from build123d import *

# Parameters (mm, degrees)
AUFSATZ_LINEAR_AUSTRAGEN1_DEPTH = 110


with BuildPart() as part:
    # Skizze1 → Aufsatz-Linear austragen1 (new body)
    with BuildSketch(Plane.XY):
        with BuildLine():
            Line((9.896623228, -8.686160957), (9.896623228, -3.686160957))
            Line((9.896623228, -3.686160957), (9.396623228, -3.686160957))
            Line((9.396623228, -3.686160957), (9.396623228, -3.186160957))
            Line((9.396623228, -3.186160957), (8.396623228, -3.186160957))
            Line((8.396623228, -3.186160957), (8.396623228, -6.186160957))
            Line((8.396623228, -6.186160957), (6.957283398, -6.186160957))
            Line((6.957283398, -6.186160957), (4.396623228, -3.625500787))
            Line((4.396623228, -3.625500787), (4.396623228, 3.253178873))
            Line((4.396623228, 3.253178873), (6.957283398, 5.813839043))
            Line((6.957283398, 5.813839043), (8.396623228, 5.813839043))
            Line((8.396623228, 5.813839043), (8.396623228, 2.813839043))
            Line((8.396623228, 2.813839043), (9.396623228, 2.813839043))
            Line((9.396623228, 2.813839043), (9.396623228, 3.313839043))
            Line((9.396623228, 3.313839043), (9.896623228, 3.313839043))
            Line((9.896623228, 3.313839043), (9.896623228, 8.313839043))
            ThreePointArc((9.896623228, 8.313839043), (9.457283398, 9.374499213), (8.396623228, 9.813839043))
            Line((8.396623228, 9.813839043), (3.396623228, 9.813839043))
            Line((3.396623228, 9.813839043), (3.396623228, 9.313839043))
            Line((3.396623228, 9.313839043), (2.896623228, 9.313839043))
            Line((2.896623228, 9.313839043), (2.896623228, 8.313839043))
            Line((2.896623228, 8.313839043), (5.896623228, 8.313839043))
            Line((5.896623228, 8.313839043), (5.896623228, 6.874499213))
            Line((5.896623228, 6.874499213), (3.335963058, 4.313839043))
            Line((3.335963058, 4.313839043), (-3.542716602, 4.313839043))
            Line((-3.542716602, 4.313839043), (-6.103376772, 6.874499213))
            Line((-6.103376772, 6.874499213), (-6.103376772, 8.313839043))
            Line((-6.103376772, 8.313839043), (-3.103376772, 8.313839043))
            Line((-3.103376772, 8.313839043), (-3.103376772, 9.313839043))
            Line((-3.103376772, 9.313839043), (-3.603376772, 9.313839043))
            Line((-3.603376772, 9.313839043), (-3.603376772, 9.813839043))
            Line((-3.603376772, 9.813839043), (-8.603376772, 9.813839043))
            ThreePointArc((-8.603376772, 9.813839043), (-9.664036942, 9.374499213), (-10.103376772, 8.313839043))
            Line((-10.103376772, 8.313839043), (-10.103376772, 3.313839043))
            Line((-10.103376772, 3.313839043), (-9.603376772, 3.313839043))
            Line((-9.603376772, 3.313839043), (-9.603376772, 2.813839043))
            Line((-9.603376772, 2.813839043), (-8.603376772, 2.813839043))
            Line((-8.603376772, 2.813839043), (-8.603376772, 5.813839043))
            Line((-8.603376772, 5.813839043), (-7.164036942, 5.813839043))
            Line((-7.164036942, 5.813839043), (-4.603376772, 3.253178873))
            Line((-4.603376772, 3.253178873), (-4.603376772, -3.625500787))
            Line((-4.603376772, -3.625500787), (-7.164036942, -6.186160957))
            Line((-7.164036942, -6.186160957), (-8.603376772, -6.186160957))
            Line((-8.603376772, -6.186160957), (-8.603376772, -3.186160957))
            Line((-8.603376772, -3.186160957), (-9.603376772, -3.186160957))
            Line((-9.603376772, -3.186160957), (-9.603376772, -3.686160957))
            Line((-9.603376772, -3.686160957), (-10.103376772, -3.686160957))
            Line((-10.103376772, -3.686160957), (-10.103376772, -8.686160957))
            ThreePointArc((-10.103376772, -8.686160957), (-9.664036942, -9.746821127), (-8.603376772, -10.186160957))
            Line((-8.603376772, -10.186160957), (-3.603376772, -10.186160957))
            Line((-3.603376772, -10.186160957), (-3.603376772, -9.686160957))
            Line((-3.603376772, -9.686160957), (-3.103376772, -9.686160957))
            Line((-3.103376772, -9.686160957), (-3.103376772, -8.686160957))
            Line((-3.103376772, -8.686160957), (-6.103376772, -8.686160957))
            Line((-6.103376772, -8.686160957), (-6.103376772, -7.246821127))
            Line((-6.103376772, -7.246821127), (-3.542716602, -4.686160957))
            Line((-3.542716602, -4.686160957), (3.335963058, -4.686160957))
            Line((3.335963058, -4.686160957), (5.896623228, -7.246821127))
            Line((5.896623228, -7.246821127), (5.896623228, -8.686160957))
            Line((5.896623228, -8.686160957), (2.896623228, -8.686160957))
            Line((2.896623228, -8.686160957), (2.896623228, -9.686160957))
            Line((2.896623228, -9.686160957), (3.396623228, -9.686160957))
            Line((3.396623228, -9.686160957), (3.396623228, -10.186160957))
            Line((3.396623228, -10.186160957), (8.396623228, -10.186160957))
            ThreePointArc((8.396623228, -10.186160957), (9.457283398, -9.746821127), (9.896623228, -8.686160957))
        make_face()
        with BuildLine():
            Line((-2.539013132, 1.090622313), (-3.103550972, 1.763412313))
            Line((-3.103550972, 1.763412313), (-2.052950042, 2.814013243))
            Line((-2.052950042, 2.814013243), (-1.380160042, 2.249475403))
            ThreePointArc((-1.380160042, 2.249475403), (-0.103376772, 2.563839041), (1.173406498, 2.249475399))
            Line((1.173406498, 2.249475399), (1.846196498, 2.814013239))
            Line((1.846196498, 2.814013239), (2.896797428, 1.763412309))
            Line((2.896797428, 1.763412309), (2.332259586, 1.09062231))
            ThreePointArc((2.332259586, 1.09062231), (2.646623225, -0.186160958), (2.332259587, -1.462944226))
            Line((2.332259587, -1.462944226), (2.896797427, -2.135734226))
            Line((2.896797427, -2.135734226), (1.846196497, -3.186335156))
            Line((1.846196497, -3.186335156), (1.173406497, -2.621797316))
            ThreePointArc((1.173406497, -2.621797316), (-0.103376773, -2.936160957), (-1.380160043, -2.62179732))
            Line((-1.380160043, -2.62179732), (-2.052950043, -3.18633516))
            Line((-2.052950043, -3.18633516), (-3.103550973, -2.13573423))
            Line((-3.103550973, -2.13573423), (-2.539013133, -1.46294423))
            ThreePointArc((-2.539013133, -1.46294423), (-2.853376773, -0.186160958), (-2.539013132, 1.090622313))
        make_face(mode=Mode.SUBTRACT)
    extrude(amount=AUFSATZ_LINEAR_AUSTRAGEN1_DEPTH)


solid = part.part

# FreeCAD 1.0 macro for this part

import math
import FreeCAD as App
import Part
import Sketcher
from FreeCAD import Vector
Q = App.Units.Quantity

doc = App.newDocument("Part")
body = doc.addObject("PartDesign::Body", "Body")

# Sketch on XY plane
sketch1 = body.newObject("Sketcher::SketchObject", "Sketch")
sketch1.AttachmentSupport = (doc.getObject("XY_Plane"), [""])
sketch1.MapMode = "FlatFace"
sketch1.addGeometry(Part.LineSegment(Vector(9.896623, -8.686161, 0), Vector(9.896623, -3.686161, 0)), False)
sketch1.addGeometry(Part.LineSegment(Vector(9.896623, -3.686161, 0), Vector(9.396623, -3.686161, 0)), False)
sketch1.addGeometry(Part.LineSegment(Vector(9.396623, -3.686161, 0), Vector(9.396623, -3.186161, 0)), False)
sketch1.addGeometry(Part.LineSegment(Vector(9.396623, -3.186161, 0), Vector(8.396623, -3.186161, 0)), False)
sketch1.addGeometry(Part.LineSegment(Vector(8.396623, -3.186161, 0), Vector(8.396623, -6.186161, 0)), False)
sketch1.addGeometry(Part.LineSegment(Vector(8.396623, -6.186161, 0), Vector(6.957283, -6.186161, 0)), False)
sketch1.addGeometry(Part.LineSegment(Vector(6.957283, -6.186161, 0), Vector(4.396623, -3.625501, 0)), False)
sketch1.addGeometry(Part.LineSegment(Vector(4.396623, -3.625501, 0), Vector(4.396623, 3.253179, 0)), False)
sketch1.addGeometry(Part.LineSegment(Vector(4.396623, 3.253179, 0), Vector(6.957283, 5.813839, 0)), False)
sketch1.addGeometry(Part.LineSegment(Vector(6.957283, 5.813839, 0), Vector(8.396623, 5.813839, 0)), False)
sketch1.addGeometry(Part.LineSegment(Vector(8.396623, 5.813839, 0), Vector(8.396623, 2.813839, 0)), False)
sketch1.addGeometry(Part.LineSegment(Vector(8.396623, 2.813839, 0), Vector(9.396623, 2.813839, 0)), False)
sketch1.addGeometry(Part.LineSegment(Vector(9.396623, 2.813839, 0), Vector(9.396623, 3.313839, 0)), False)
sketch1.addGeometry(Part.LineSegment(Vector(9.396623, 3.313839, 0), Vector(9.896623, 3.313839, 0)), False)
sketch1.addGeometry(Part.LineSegment(Vector(9.896623, 3.313839, 0), Vector(9.896623, 8.313839, 0)), False)
sketch1.addGeometry(Part.ArcOfCircle(Part.Circle(Vector(8.396623, 8.313839, 0), Vector(0, 0, 1), 1.5), math.radians(0), math.radians(90)), False)
sketch1.addGeometry(Part.LineSegment(Vector(8.396623, 9.813839, 0), Vector(3.396623, 9.813839, 0)), False)
sketch1.addGeometry(Part.LineSegment(Vector(3.396623, 9.813839, 0), Vector(3.396623, 9.313839, 0)), False)
sketch1.addGeometry(Part.LineSegment(Vector(3.396623, 9.313839, 0), Vector(2.896623, 9.313839, 0)), False)
sketch1.addGeometry(Part.LineSegment(Vector(2.896623, 9.313839, 0), Vector(2.896623, 8.313839, 0)), False)
sketch1.addGeometry(Part.LineSegment(Vector(2.896623, 8.313839, 0), Vector(5.896623, 8.313839, 0)), False)
sketch1.addGeometry(Part.LineSegment(Vector(5.896623, 8.313839, 0), Vector(5.896623, 6.874499, 0)), False)
sketch1.addGeometry(Part.LineSegment(Vector(5.896623, 6.874499, 0), Vector(3.335963, 4.313839, 0)), False)
sketch1.addGeometry(Part.LineSegment(Vector(3.335963, 4.313839, 0), Vector(-3.542717, 4.313839, 0)), False)
sketch1.addGeometry(Part.LineSegment(Vector(-3.542717, 4.313839, 0), Vector(-6.103377, 6.874499, 0)), False)
sketch1.addGeometry(Part.LineSegment(Vector(-6.103377, 6.874499, 0), Vector(-6.103377, 8.313839, 0)), False)
sketch1.addGeometry(Part.LineSegment(Vector(-6.103377, 8.313839, 0), Vector(-3.103377, 8.313839, 0)), False)
sketch1.addGeometry(Part.LineSegment(Vector(-3.103377, 8.313839, 0), Vector(-3.103377, 9.313839, 0)), False)
sketch1.addGeometry(Part.LineSegment(Vector(-3.103377, 9.313839, 0), Vector(-3.603377, 9.313839, 0)), False)
sketch1.addGeometry(Part.LineSegment(Vector(-3.603377, 9.313839, 0), Vector(-3.603377, 9.813839, 0)), False)
sketch1.addGeometry(Part.LineSegment(Vector(-3.603377, 9.813839, 0), Vector(-8.603377, 9.813839, 0)), False)
sketch1.addGeometry(Part.ArcOfCircle(Part.Circle(Vector(-8.603377, 8.313839, 0), Vector(0, 0, 1), 1.5), math.radians(90), math.radians(180)), False)
sketch1.addGeometry(Part.LineSegment(Vector(-10.103377, 8.313839, 0), Vector(-10.103377, 3.313839, 0)), False)
sketch1.addGeometry(Part.LineSegment(Vector(-10.103377, 3.313839, 0), Vector(-9.603377, 3.313839, 0)), False)
sketch1.addGeometry(Part.LineSegment(Vector(-9.603377, 3.313839, 0), Vector(-9.603377, 2.813839, 0)), False)
sketch1.addGeometry(Part.LineSegment(Vector(-9.603377, 2.813839, 0), Vector(-8.603377, 2.813839, 0)), False)
sketch1.addGeometry(Part.LineSegment(Vector(-8.603377, 2.813839, 0), Vector(-8.603377, 5.813839, 0)), False)
sketch1.addGeometry(Part.LineSegment(Vector(-8.603377, 5.813839, 0), Vector(-7.164037, 5.813839, 0)), False)
sketch1.addGeometry(Part.LineSegment(Vector(-7.164037, 5.813839, 0), Vector(-4.603377, 3.253179, 0)), False)
sketch1.addGeometry(Part.LineSegment(Vector(-4.603377, 3.253179, 0), Vector(-4.603377, -3.625501, 0)), False)
sketch1.addGeometry(Part.LineSegment(Vector(-4.603377, -3.625501, 0), Vector(-7.164037, -6.186161, 0)), False)
sketch1.addGeometry(Part.LineSegment(Vector(-7.164037, -6.186161, 0), Vector(-8.603377, -6.186161, 0)), False)
sketch1.addGeometry(Part.LineSegment(Vector(-8.603377, -6.186161, 0), Vector(-8.603377, -3.186161, 0)), False)
sketch1.addGeometry(Part.LineSegment(Vector(-8.603377, -3.186161, 0), Vector(-9.603377, -3.186161, 0)), False)
sketch1.addGeometry(Part.LineSegment(Vector(-9.603377, -3.186161, 0), Vector(-9.603377, -3.686161, 0)), False)
sketch1.addGeometry(Part.LineSegment(Vector(-9.603377, -3.686161, 0), Vector(-10.103377, -3.686161, 0)), False)
sketch1.addGeometry(Part.LineSegment(Vector(-10.103377, -3.686161, 0), Vector(-10.103377, -8.686161, 0)), False)
sketch1.addGeometry(Part.ArcOfCircle(Part.Circle(Vector(-8.603377, -8.686161, 0), Vector(0, 0, 1), 1.5), math.radians(-180), math.radians(-90)), False)
sketch1.addGeometry(Part.LineSegment(Vector(-8.603377, -10.186161, 0), Vector(-3.603377, -10.186161, 0)), False)
sketch1.addGeometry(Part.LineSegment(Vector(-3.603377, -10.186161, 0), Vector(-3.603377, -9.686161, 0)), False)
sketch1.addGeometry(Part.LineSegment(Vector(-3.603377, -9.686161, 0), Vector(-3.103377, -9.686161, 0)), False)
sketch1.addGeometry(Part.LineSegment(Vector(-3.103377, -9.686161, 0), Vector(-3.103377, -8.686161, 0)), False)
sketch1.addGeometry(Part.LineSegment(Vector(-3.103377, -8.686161, 0), Vector(-6.103377, -8.686161, 0)), False)
sketch1.addGeometry(Part.LineSegment(Vector(-6.103377, -8.686161, 0), Vector(-6.103377, -7.246821, 0)), False)
sketch1.addGeometry(Part.LineSegment(Vector(-6.103377, -7.246821, 0), Vector(-3.542717, -4.686161, 0)), False)
sketch1.addGeometry(Part.LineSegment(Vector(-3.542717, -4.686161, 0), Vector(3.335963, -4.686161, 0)), False)
sketch1.addGeometry(Part.LineSegment(Vector(3.335963, -4.686161, 0), Vector(5.896623, -7.246821, 0)), False)
sketch1.addGeometry(Part.LineSegment(Vector(5.896623, -7.246821, 0), Vector(5.896623, -8.686161, 0)), False)
sketch1.addGeometry(Part.LineSegment(Vector(5.896623, -8.686161, 0), Vector(2.896623, -8.686161, 0)), False)
sketch1.addGeometry(Part.LineSegment(Vector(2.896623, -8.686161, 0), Vector(2.896623, -9.686161, 0)), False)
sketch1.addGeometry(Part.LineSegment(Vector(2.896623, -9.686161, 0), Vector(3.396623, -9.686161, 0)), False)
sketch1.addGeometry(Part.LineSegment(Vector(3.396623, -9.686161, 0), Vector(3.396623, -10.186161, 0)), False)
sketch1.addGeometry(Part.LineSegment(Vector(3.396623, -10.186161, 0), Vector(8.396623, -10.186161, 0)), False)
sketch1.addGeometry(Part.ArcOfCircle(Part.Circle(Vector(8.396623, -8.686161, 0), Vector(0, 0, 1), 1.5), math.radians(-90), math.radians(0)), False)
sketch1.addGeometry(Part.ArcOfCircle(Part.Circle(Vector(-0.103377, -0.186161, 0), Vector(0, 0, 1), 2.75), math.radians(152.336053), math.radians(207.663947)), False)
sketch1.addGeometry(Part.LineSegment(Vector(-2.539013, 1.090622, 0), Vector(-3.103551, 1.763412, 0)), False)
sketch1.addGeometry(Part.LineSegment(Vector(-3.103551, 1.763412, 0), Vector(-2.05295, 2.814013, 0)), False)
sketch1.addGeometry(Part.LineSegment(Vector(-2.05295, 2.814013, 0), Vector(-1.38016, 2.249475, 0)), False)
sketch1.addGeometry(Part.ArcOfCircle(Part.Circle(Vector(-0.103377, -0.186161, 0), Vector(0, 0, 1), 2.75), math.radians(62.336053), math.radians(117.663947)), False)
sketch1.addGeometry(Part.LineSegment(Vector(1.173406, 2.249475, 0), Vector(1.846196, 2.814013, 0)), False)
sketch1.addGeometry(Part.LineSegment(Vector(1.846196, 2.814013, 0), Vector(2.896797, 1.763412, 0)), False)
sketch1.addGeometry(Part.LineSegment(Vector(2.896797, 1.763412, 0), Vector(2.33226, 1.090622, 0)), False)
sketch1.addGeometry(Part.ArcOfCircle(Part.Circle(Vector(-0.103377, -0.186161, 0), Vector(0, 0, 1), 2.75), math.radians(-27.663947), math.radians(27.663947)), False)
sketch1.addGeometry(Part.LineSegment(Vector(2.33226, -1.462944, 0), Vector(2.896797, -2.135734, 0)), False)
sketch1.addGeometry(Part.LineSegment(Vector(2.896797, -2.135734, 0), Vector(1.846196, -3.186335, 0)), False)
sketch1.addGeometry(Part.LineSegment(Vector(1.846196, -3.186335, 0), Vector(1.173406, -2.621797, 0)), False)
sketch1.addGeometry(Part.ArcOfCircle(Part.Circle(Vector(-0.103377, -0.186161, 0), Vector(0, 0, 1), 2.75), math.radians(-117.663947), math.radians(-62.336053)), False)
sketch1.addGeometry(Part.LineSegment(Vector(-1.38016, -2.621797, 0), Vector(-2.05295, -3.186335, 0)), False)
sketch1.addGeometry(Part.LineSegment(Vector(-2.05295, -3.186335, 0), Vector(-3.103551, -2.135734, 0)), False)
sketch1.addGeometry(Part.LineSegment(Vector(-3.103551, -2.135734, 0), Vector(-2.539013, -1.462944, 0)), False)
sketch1.addConstraint(Sketcher.Constraint("Coincident", 0, 2, 1, 1))
sketch1.addConstraint(Sketcher.Constraint("Coincident", 1, 2, 2, 1))
sketch1.addConstraint(Sketcher.Constraint("Coincident", 2, 2, 3, 1))
sketch1.addConstraint(Sketcher.Constraint("Coincident", 3, 2, 4, 1))
sketch1.addConstraint(Sketcher.Constraint("Coincident", 4, 2, 5, 1))
sketch1.addConstraint(Sketcher.Constraint("Coincident", 5, 2, 6, 1))
sketch1.addConstraint(Sketcher.Constraint("Coincident", 6, 2, 7, 1))
sketch1.addConstraint(Sketcher.Constraint("Coincident", 7, 2, 8, 1))
sketch1.addConstraint(Sketcher.Constraint("Coincident", 8, 2, 9, 1))
sketch1.addConstraint(Sketcher.Constraint("Coincident", 9, 2, 10, 1))
sketch1.addConstraint(Sketcher.Constraint("Coincident", 10, 2, 11, 1))
sketch1.addConstraint(Sketcher.Constraint("Coincident", 11, 2, 12, 1))
sketch1.addConstraint(Sketcher.Constraint("Coincident", 12, 2, 13, 1))
sketch1.addConstraint(Sketcher.Constraint("Coincident", 13, 2, 14, 1))
sketch1.addConstraint(Sketcher.Constraint("Tangent", 14, 2, 15, 1))
sketch1.addConstraint(Sketcher.Constraint("Tangent", 15, 2, 16, 1))
sketch1.addConstraint(Sketcher.Constraint("Coincident", 16, 2, 17, 1))
sketch1.addConstraint(Sketcher.Constraint("Coincident", 17, 2, 18, 1))
sketch1.addConstraint(Sketcher.Constraint("Coincident", 18, 2, 19, 1))
sketch1.addConstraint(Sketcher.Constraint("Coincident", 19, 2, 20, 1))
sketch1.addConstraint(Sketcher.Constraint("Coincident", 20, 2, 21, 1))
sketch1.addConstraint(Sketcher.Constraint("Coincident", 21, 2, 22, 1))
sketch1.addConstraint(Sketcher.Constraint("Coincident", 22, 2, 23, 1))
sketch1.addConstraint(Sketcher.Constraint("Coincident", 23, 2, 24, 1))
sketch1.addConstraint(Sketcher.Constraint("Coincident", 24, 2, 25, 1))
sketch1.addConstraint(Sketcher.Constraint("Coincident", 25, 2, 26, 1))
sketch1.addConstraint(Sketcher.Constraint("Coincident", 26, 2, 27, 1))
sketch1.addConstraint(Sketcher.Constraint("Coincident", 27, 2, 28, 1))
sketch1.addConstraint(Sketcher.Constraint("Coincident", 28, 2, 29, 1))
sketch1.addConstraint(Sketcher.Constraint("Coincident", 29, 2, 30, 1))
sketch1.addConstraint(Sketcher.Constraint("Tangent", 30, 2, 31, 1))
sketch1.addConstraint(Sketcher.Constraint("Tangent", 31, 2, 32, 1))
sketch1.addConstraint(Sketcher.Constraint("Coincident", 32, 2, 33, 1))
sketch1.addConstraint(Sketcher.Constraint("Coincident", 33, 2, 34, 1))
sketch1.addConstraint(Sketcher.Constraint("Coincident", 34, 2, 35, 1))
sketch1.addConstraint(Sketcher.Constraint("Coincident", 35, 2, 36, 1))
sketch1.addConstraint(Sketcher.Constraint("Coincident", 36, 2, 37, 1))
sketch1.addConstraint(Sketcher.Constraint("Coincident", 37, 2, 38, 1))
sketch1.addConstraint(Sketcher.Constraint("Coincident", 38, 2, 39, 1))
sketch1.addConstraint(Sketcher.Constraint("Coincident", 39, 2, 40, 1))
sketch1.addConstraint(Sketcher.Constraint("Coincident", 40, 2, 41, 1))
sketch1.addConstraint(Sketcher.Constraint("Coincident", 41, 2, 42, 1))
sketch1.addConstraint(Sketcher.Constraint("Coincident", 42, 2, 43, 1))
sketch1.addConstraint(Sketcher.Constraint("Coincident", 43, 2, 44, 1))
sketch1.addConstraint(Sketcher.Constraint("Coincident", 44, 2, 45, 1))
sketch1.addConstraint(Sketcher.Constraint("Coincident", 45, 2, 46, 1))
sketch1.addConstraint(Sketcher.Constraint("Tangent", 46, 2, 47, 1))
sketch1.addConstraint(Sketcher.Constraint("Tangent", 47, 2, 48, 1))
sketch1.addConstraint(Sketcher.Constraint("Coincident", 48, 2, 49, 1))
sketch1.addConstraint(Sketcher.Constraint("Coincident", 49, 2, 50, 1))
sketch1.addConstraint(Sketcher.Constraint("Coincident", 50, 2, 51, 1))
sketch1.addConstraint(Sketcher.Constraint("Coincident", 51, 2, 52, 1))
sketch1.addConstraint(Sketcher.Constraint("Coincident", 52, 2, 53, 1))
sketch1.addConstraint(Sketcher.Constraint("Coincident", 53, 2, 54, 1))
sketch1.addConstraint(Sketcher.Constraint("Coincident", 54, 2, 55, 1))
sketch1.addConstraint(Sketcher.Constraint("Coincident", 55, 2, 56, 1))
sketch1.addConstraint(Sketcher.Constraint("Coincident", 56, 2, 57, 1))
sketch1.addConstraint(Sketcher.Constraint("Coincident", 57, 2, 58, 1))
sketch1.addConstraint(Sketcher.Constraint("Coincident", 58, 2, 59, 1))
sketch1.addConstraint(Sketcher.Constraint("Coincident", 59, 2, 60, 1))
sketch1.addConstraint(Sketcher.Constraint("Coincident", 60, 2, 61, 1))
sketch1.addConstraint(Sketcher.Constraint("Coincident", 61, 2, 62, 1))
sketch1.addConstraint(Sketcher.Constraint("Tangent", 62, 2, 63, 1))
sketch1.addConstraint(Sketcher.Constraint("Tangent", 63, 2, 0, 1))
sketch1.addConstraint(Sketcher.Constraint("Coincident", 64, 1, 65, 1))
sketch1.addConstraint(Sketcher.Constraint("Coincident", 65, 2, 66, 1))
sketch1.addConstraint(Sketcher.Constraint("Coincident", 66, 2, 67, 1))
sketch1.addConstraint(Sketcher.Constraint("Coincident", 67, 2, 68, 2))
sketch1.addConstraint(Sketcher.Constraint("Coincident", 68, 1, 69, 1))
sketch1.addConstraint(Sketcher.Constraint("Coincident", 69, 2, 70, 1))
sketch1.addConstraint(Sketcher.Constraint("Coincident", 70, 2, 71, 1))
sketch1.addConstraint(Sketcher.Constraint("Coincident", 71, 2, 72, 2))
sketch1.addConstraint(Sketcher.Constraint("Coincident", 72, 1, 73, 1))
sketch1.addConstraint(Sketcher.Constraint("Coincident", 73, 2, 74, 1))
sketch1.addConstraint(Sketcher.Constraint("Coincident", 74, 2, 75, 1))
sketch1.addConstraint(Sketcher.Constraint("Coincident", 75, 2, 76, 2))
sketch1.addConstraint(Sketcher.Constraint("Coincident", 76, 1, 77, 1))
sketch1.addConstraint(Sketcher.Constraint("Coincident", 77, 2, 78, 1))
sketch1.addConstraint(Sketcher.Constraint("Coincident", 78, 2, 79, 1))
sketch1.addConstraint(Sketcher.Constraint("Coincident", 79, 2, 64, 2))
sketch1.addConstraint(Sketcher.Constraint("Vertical", 0))
sketch1.addConstraint(Sketcher.Constraint("Horizontal", 1))
sketch1.addConstraint(Sketcher.Constraint("Vertical", 2))
sketch1.addConstraint(Sketcher.Constraint("Horizontal", 3))
sketch1.addConstraint(Sketcher.Constraint("Vertical", 4))
sketch1.addConstraint(Sketcher.Constraint("Horizontal", 5))
sketch1.addConstraint(Sketcher.Constraint("Vertical", 7))
sketch1.addConstraint(Sketcher.Constraint("Horizontal", 9))
sketch1.addConstraint(Sketcher.Constraint("Vertical", 10))
sketch1.addConstraint(Sketcher.Constraint("Horizontal", 11))
sketch1.addConstraint(Sketcher.Constraint("Vertical", 12))
sketch1.addConstraint(Sketcher.Constraint("Horizontal", 13))
sketch1.addConstraint(Sketcher.Constraint("Vertical", 14))
sketch1.addConstraint(Sketcher.Constraint("Horizontal", 16))
sketch1.addConstraint(Sketcher.Constraint("Vertical", 17))
sketch1.addConstraint(Sketcher.Constraint("Horizontal", 18))
sketch1.addConstraint(Sketcher.Constraint("Vertical", 19))
sketch1.addConstraint(Sketcher.Constraint("Horizontal", 20))
sketch1.addConstraint(Sketcher.Constraint("Vertical", 21))
sketch1.addConstraint(Sketcher.Constraint("Horizontal", 23))
sketch1.addConstraint(Sketcher.Constraint("Vertical", 25))
sketch1.addConstraint(Sketcher.Constraint("Horizontal", 26))
sketch1.addConstraint(Sketcher.Constraint("Vertical", 27))
sketch1.addConstraint(Sketcher.Constraint("Horizontal", 28))
sketch1.addConstraint(Sketcher.Constraint("Vertical", 29))
sketch1.addConstraint(Sketcher.Constraint("Horizontal", 30))
sketch1.addConstraint(Sketcher.Constraint("Vertical", 32))
sketch1.addConstraint(Sketcher.Constraint("Horizontal", 33))
sketch1.addConstraint(Sketcher.Constraint("Vertical", 34))
sketch1.addConstraint(Sketcher.Constraint("Horizontal", 35))
sketch1.addConstraint(Sketcher.Constraint("Vertical", 36))
sketch1.addConstraint(Sketcher.Constraint("Horizontal", 37))
sketch1.addConstraint(Sketcher.Constraint("Vertical", 39))
sketch1.addConstraint(Sketcher.Constraint("Horizontal", 41))
sketch1.addConstraint(Sketcher.Constraint("Vertical", 42))
sketch1.addConstraint(Sketcher.Constraint("Horizontal", 43))
sketch1.addConstraint(Sketcher.Constraint("Vertical", 44))
sketch1.addConstraint(Sketcher.Constraint("Horizontal", 45))
sketch1.addConstraint(Sketcher.Constraint("Vertical", 46))
sketch1.addConstraint(Sketcher.Constraint("Horizontal", 48))
sketch1.addConstraint(Sketcher.Constraint("Vertical", 49))
sketch1.addConstraint(Sketcher.Constraint("Horizontal", 50))
sketch1.addConstraint(Sketcher.Constraint("Vertical", 51))
sketch1.addConstraint(Sketcher.Constraint("Horizontal", 52))
sketch1.addConstraint(Sketcher.Constraint("Vertical", 53))
sketch1.addConstraint(Sketcher.Constraint("Horizontal", 55))
sketch1.addConstraint(Sketcher.Constraint("Vertical", 57))
sketch1.addConstraint(Sketcher.Constraint("Horizontal", 58))
sketch1.addConstraint(Sketcher.Constraint("Vertical", 59))
sketch1.addConstraint(Sketcher.Constraint("Horizontal", 60))
sketch1.addConstraint(Sketcher.Constraint("Vertical", 61))
sketch1.addConstraint(Sketcher.Constraint("Horizontal", 62))
sketch1.addConstraint(Sketcher.Constraint("Coincident", 68, 3, 64, 3))
sketch1.addConstraint(Sketcher.Constraint("Coincident", 72, 3, 64, 3))
sketch1.addConstraint(Sketcher.Constraint("Coincident", 76, 3, 64, 3))
sketch1.addConstraint(Sketcher.Constraint("Equal", 15, 31))
sketch1.addConstraint(Sketcher.Constraint("Equal", 31, 47))
sketch1.addConstraint(Sketcher.Constraint("Equal", 47, 63))
sketch1.addConstraint(Sketcher.Constraint("Equal", 64, 68))
sketch1.addConstraint(Sketcher.Constraint("Equal", 68, 72))
sketch1.addConstraint(Sketcher.Constraint("Equal", 72, 76))
sketch1.addConstraint(Sketcher.Constraint("Perpendicular", 6, 8))
sketch1.addConstraint(Sketcher.Constraint("Parallel", 8, 22))
sketch1.addConstraint(Sketcher.Constraint("Perpendicular", 22, 24))
sketch1.addConstraint(Sketcher.Constraint("Parallel", 24, 38))
sketch1.addConstraint(Sketcher.Constraint("Perpendicular", 38, 40))
sketch1.addConstraint(Sketcher.Constraint("Parallel", 40, 54))
sketch1.addConstraint(Sketcher.Constraint("Perpendicular", 54, 56))
sketch1.addConstraint(Sketcher.Constraint("Perpendicular", 56, 66))
sketch1.addConstraint(Sketcher.Constraint("Perpendicular", 65, 69))
sketch1.addConstraint(Sketcher.Constraint("Perpendicular", 66, 70))
sketch1.addConstraint(Sketcher.Constraint("Perpendicular", 67, 71))
sketch1.addConstraint(Sketcher.Constraint("Perpendicular", 69, 73))
sketch1.addConstraint(Sketcher.Constraint("Perpendicular", 70, 74))
sketch1.addConstraint(Sketcher.Constraint("Perpendicular", 71, 75))
sketch1.addConstraint(Sketcher.Constraint("Perpendicular", 73, 77))
sketch1.addConstraint(Sketcher.Constraint("Perpendicular", 74, 78))
sketch1.addConstraint(Sketcher.Constraint("Perpendicular", 75, 79))
sketch1.addConstraint(Sketcher.Constraint("Horizontal", 15, 3, 31, 3))
sketch1.addConstraint(Sketcher.Constraint("Horizontal", 47, 3, 63, 3))
sketch1.addConstraint(Sketcher.Constraint("Horizontal", 14, 2, 19, 2))
sketch1.addConstraint(Sketcher.Constraint("Horizontal", 21, 2, 24, 2))
sketch1.addConstraint(Sketcher.Constraint("Horizontal", 20, 2, 25, 2))
sketch1.addConstraint(Sketcher.Constraint("Horizontal", 18, 2, 27, 2))
sketch1.addConstraint(Sketcher.Constraint("Horizontal", 13, 2, 32, 2))
sketch1.addConstraint(Sketcher.Constraint("Horizontal", 11, 2, 34, 2))
sketch1.addConstraint(Sketcher.Constraint("Horizontal", 9, 2, 36, 2))
sketch1.addConstraint(Sketcher.Constraint("Horizontal", 7, 2, 38, 2))
sketch1.addConstraint(Sketcher.Constraint("Horizontal", 6, 2, 39, 2))
sketch1.addConstraint(Sketcher.Constraint("Horizontal", 5, 2, 40, 2))
sketch1.addConstraint(Sketcher.Constraint("Horizontal", 3, 2, 42, 2))
sketch1.addConstraint(Sketcher.Constraint("Horizontal", 1, 2, 44, 2))
sketch1.addConstraint(Sketcher.Constraint("Horizontal", 46, 2, 51, 2))
sketch1.addConstraint(Sketcher.Constraint("Horizontal", 53, 2, 56, 2))
sketch1.addConstraint(Sketcher.Constraint("Horizontal", 52, 2, 57, 2))
sketch1.addConstraint(Sketcher.Constraint("Horizontal", 50, 2, 59, 2))
sketch1.addConstraint(Sketcher.Constraint("Horizontal", 67, 2, 68, 1))
sketch1.addConstraint(Sketcher.Constraint("Horizontal", 66, 2, 69, 2))
sketch1.addConstraint(Sketcher.Constraint("Horizontal", 65, 2, 70, 2))
sketch1.addConstraint(Sketcher.Constraint("Horizontal", 64, 1, 71, 2))
sketch1.addConstraint(Sketcher.Constraint("Horizontal", 75, 2, 76, 1))
sketch1.addConstraint(Sketcher.Constraint("Horizontal", 74, 2, 77, 2))
sketch1.addConstraint(Sketcher.Constraint("Horizontal", 73, 2, 78, 2))
sketch1.addConstraint(Sketcher.Constraint("Vertical", 31, 3, 47, 3))
sketch1.addConstraint(Sketcher.Constraint("Vertical", 15, 3, 63, 3))
sketch1.addConstraint(Sketcher.Constraint("Vertical", 63, 3, 3, 2))
sketch1.addConstraint(Sketcher.Constraint("Vertical", 5, 2, 8, 2))
sketch1.addConstraint(Sketcher.Constraint("Vertical", 4, 2, 9, 2))
sketch1.addConstraint(Sketcher.Constraint("Vertical", 2, 2, 11, 2))
sketch1.addConstraint(Sketcher.Constraint("Vertical", 30, 2, 35, 2))
sketch1.addConstraint(Sketcher.Constraint("Vertical", 37, 2, 40, 2))
sketch1.addConstraint(Sketcher.Constraint("Vertical", 36, 2, 41, 2))
sketch1.addConstraint(Sketcher.Constraint("Vertical", 34, 2, 43, 2))
sketch1.addConstraint(Sketcher.Constraint("Vertical", 29, 2, 48, 2))
sketch1.addConstraint(Sketcher.Constraint("Vertical", 27, 2, 50, 2))
sketch1.addConstraint(Sketcher.Constraint("Vertical", 25, 2, 52, 2))
sketch1.addConstraint(Sketcher.Constraint("Vertical", 23, 2, 54, 2))
sketch1.addConstraint(Sketcher.Constraint("Vertical", 22, 2, 55, 2))
sketch1.addConstraint(Sketcher.Constraint("Vertical", 19, 2, 58, 2))
sketch1.addConstraint(Sketcher.Constraint("Vertical", 17, 2, 60, 2))
sketch1.addConstraint(Sketcher.Constraint("Vertical", 71, 2, 72, 1))
sketch1.addConstraint(Sketcher.Constraint("Vertical", 70, 2, 73, 2))
sketch1.addConstraint(Sketcher.Constraint("Vertical", 69, 2, 74, 2))
sketch1.addConstraint(Sketcher.Constraint("Equal", 13, 18))
sketch1.addConstraint(Sketcher.Constraint("Equal", 20, 26))
sketch1.addConstraint(Sketcher.Constraint("Equal", 18, 28))
sketch1.addConstraint(Sketcher.Constraint("Equal", 16, 30))
sketch1.addConstraint(Sketcher.Constraint("Equal", 28, 33))
sketch1.addConstraint(Sketcher.Constraint("Equal", 9, 37))
sketch1.addConstraint(Sketcher.Constraint("Equal", 62, 0))
sketch1.addConstraint(Sketcher.Constraint("Equal", 60, 2))
sketch1.addConstraint(Sketcher.Constraint("Equal", 58, 4))
sketch1.addConstraint(Sketcher.Constraint("Equal", 55, 7))
sketch1.addConstraint(Sketcher.Constraint("Equal", 4, 10))
sketch1.addConstraint(Sketcher.Constraint("Equal", 2, 12))
sketch1.addConstraint(Sketcher.Constraint("Equal", 0, 14))
sketch1.addConstraint(Sketcher.Constraint("Equal", 12, 17))
sketch1.addConstraint(Sketcher.Constraint("Equal", 41, 21))
sketch1.addConstraint(Sketcher.Constraint("Equal", 44, 49))
sketch1.addConstraint(Sketcher.Constraint("Equal", 25, 53))
sketch1.addConstraint(Sketcher.Constraint("Equal", 8, 22))
sketch1.addConstraint(Sketcher.Constraint("Equal", 65, 67))
sketch1.addConstraint(Sketcher.Constraint("Radius", 15, Q("1.5 mm")))
sketch1.addConstraint(Sketcher.Constraint("DistanceX", 3, 2, 3, 1, Q("1 mm")))
sketch1.addConstraint(Sketcher.Constraint("DistanceX", 16, 2, 16, 1, Q("5 mm")))
sketch1.addConstraint(Sketcher.Constraint("DistanceX", 20, 1, 20, 2, Q("3 mm")))
sketch1.addConstraint(Sketcher.Constraint("Angle", 65, Q("130 deg")))
sketch1.addConstraint(Sketcher.Constraint("Radius", 64, Q("2.75 mm")))
sketch1.addConstraint(Sketcher.Constraint("DistanceX", 5, 2, 5, 1, Q("1.43934 mm")))
sketch1.addConstraint(Sketcher.Constraint("DistanceX", 23, 2, 23, 1, Q("6.87868 mm")))
sketch1.addConstraint(Sketcher.Constraint("DistanceY", 6, 2, -1, 1, Q("3.625501 mm")))
sketch1.addConstraint(Sketcher.Constraint("DistanceY", -1, 1, 21, 2, Q("6.874499 mm")))
sketch1.addConstraint(Sketcher.Constraint("DistanceY", 64, 3, -1, 1, Q("0.186161 mm")))
sketch1.addConstraint(Sketcher.Constraint("DistanceX", 65, 2, -1, 1, Q("3.103551 mm")))
sketch1.addConstraint(Sketcher.Constraint("DistanceX", 66, 2, -1, 1, Q("2.05295 mm")))
sketch1.addConstraint(Sketcher.Constraint("DistanceX", 67, 2, -1, 1, Q("1.38016 mm")))
sketch1.addConstraint(Sketcher.Constraint("DistanceX", -1, 1, 15, 3, Q("8.396623 mm")))
pad1 = body.newObject("PartDesign::Pad", "Pad")
pad1.Profile = sketch1
pad1.Length = 110

doc.recompute()
